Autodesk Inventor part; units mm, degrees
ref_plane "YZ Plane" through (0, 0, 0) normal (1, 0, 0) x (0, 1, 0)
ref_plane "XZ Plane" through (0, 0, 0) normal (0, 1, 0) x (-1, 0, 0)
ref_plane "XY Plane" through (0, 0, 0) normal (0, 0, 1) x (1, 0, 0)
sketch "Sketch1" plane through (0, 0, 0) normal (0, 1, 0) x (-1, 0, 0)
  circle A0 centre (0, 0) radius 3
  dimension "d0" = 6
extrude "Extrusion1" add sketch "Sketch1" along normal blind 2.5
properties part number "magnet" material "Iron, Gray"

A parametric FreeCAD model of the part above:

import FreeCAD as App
import Part
import Sketcher

doc = App.newDocument("Part")
params = doc.addObject("Spreadsheet::Sheet", "Params")
for row, (alias, value) in enumerate([
    ("sketch1_diameter", "6 mm"),
    ("pad1_length", "2.5 mm"),
], start=1):
    params.set(f"A{row}", alias)
    params.set(f"B{row}", "=" + value)
    params.setAlias(f"B{row}", alias)

body = doc.addObject("PartDesign::Body", "Body")

sketch1 = body.newObject("Sketcher::SketchObject", "Sketch")
sketch1.AttachmentSupport = (doc.getObject("XZ_Plane"), [""])
sketch1.MapMode = "FlatFace"
sketch1.addGeometry(Part.Circle(App.Vector(0, 0, 0), App.Vector(0, 0, 1), 3), False)
sketch1.addConstraint(Sketcher.Constraint("Coincident", 0, 3, -1, 1))
sketch1.addConstraint(Sketcher.Constraint("Diameter", 0, 6.0))
sketch1.setExpression("Constraints[1]", "Params.sketch1_diameter")
pad1 = body.newObject("PartDesign::Pad", "Pad")
pad1.Profile = sketch1
pad1.setExpression("Length", "Params.pad1_length")
pad1.Reversed = True

doc.recompute()
